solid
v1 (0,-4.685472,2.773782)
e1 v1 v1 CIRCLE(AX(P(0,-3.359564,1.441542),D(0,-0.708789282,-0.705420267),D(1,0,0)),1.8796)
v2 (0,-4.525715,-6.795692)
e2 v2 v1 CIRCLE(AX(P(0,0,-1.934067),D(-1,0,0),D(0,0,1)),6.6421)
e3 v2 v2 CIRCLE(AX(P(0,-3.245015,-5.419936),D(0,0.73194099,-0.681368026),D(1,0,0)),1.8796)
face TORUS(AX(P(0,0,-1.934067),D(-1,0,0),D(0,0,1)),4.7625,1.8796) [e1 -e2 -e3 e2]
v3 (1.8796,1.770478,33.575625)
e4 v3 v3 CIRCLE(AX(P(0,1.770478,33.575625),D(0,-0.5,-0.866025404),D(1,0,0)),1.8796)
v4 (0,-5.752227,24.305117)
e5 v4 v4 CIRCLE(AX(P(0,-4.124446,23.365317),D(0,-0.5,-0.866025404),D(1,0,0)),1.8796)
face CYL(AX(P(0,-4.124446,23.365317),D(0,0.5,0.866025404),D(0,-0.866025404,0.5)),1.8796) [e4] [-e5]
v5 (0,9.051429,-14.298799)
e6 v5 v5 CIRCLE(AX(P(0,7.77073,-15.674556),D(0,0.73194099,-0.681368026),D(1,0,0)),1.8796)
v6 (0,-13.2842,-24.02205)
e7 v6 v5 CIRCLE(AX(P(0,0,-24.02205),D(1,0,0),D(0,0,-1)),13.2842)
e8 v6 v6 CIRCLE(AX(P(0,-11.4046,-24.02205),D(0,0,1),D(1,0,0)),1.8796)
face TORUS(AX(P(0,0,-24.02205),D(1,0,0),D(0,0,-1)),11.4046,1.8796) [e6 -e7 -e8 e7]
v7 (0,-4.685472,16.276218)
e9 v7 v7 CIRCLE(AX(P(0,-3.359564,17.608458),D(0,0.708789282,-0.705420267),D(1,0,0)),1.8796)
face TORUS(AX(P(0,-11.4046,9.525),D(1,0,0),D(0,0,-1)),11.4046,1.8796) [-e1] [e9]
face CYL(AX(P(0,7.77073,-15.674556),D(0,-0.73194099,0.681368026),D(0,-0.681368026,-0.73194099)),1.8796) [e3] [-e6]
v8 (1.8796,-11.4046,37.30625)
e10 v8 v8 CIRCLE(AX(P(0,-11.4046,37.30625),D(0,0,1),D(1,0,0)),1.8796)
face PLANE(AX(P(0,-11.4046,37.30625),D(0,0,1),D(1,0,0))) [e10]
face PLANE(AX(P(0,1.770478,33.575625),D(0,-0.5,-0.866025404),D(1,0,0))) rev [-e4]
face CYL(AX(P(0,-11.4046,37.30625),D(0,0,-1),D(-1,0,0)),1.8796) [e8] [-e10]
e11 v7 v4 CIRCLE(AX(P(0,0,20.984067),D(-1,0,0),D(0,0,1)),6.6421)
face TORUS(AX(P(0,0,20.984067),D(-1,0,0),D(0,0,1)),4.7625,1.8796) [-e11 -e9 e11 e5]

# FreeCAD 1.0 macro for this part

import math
import FreeCAD as App
import Part
import Sketcher

V = App.Vector
Q = App.Units.Quantity

doc = App.newDocument("Part")
body = doc.addObject("PartDesign::Body", "Body")

sketch1 = body.newObject("Sketcher::SketchObject", "Sketch")
sketch1.AttachmentSupport = (doc.getObject("XY_Plane"), [""])
sketch1.MapMode = "FlatFace"
sketch1.AttachmentOffset = App.Placement(V(0, 0, 1.46875 * 25.4), App.Rotation())
sketch1.addGeometry(Part.Circle(V(0, -11.4046, 0), V(0, 0, 1), 1.8796), False)
sketch1.addConstraint([
    Sketcher.Constraint("PointOnObject", 0, 3, -2),
    Sketcher.Constraint("Diameter", 0, Q("0.148 in")),
    Sketcher.Constraint("DistanceY", 0, 3, -1, 1, Q("0.449 in")),
])

sketch2 = body.newObject("Sketcher::SketchObject", "Sketch001")
sketch2.AttachmentSupport = (doc.getObject("YZ_Plane"), [""])
sketch2.MapMode = "FlatFace"
sketch2.addGeometry([
    Part.LineSegment(V(1.770478, 33.575625, 0), V(-4.124446, 23.365317, 0)),
    Part.ArcOfCircle(Part.Circle(V(0, 20.984067, 0), V(0, 0, 1), 4.7625), math.radians(150), math.radians(225.136493)),
    Part.ArcOfCircle(Part.Circle(V(-11.4046, 9.525, 0), V(0, 0, 1), 11.4046), math.radians(-45.136493), math.radians(45.136493)),
    Part.ArcOfCircle(Part.Circle(V(0, -1.934067, 0), V(0, 0, 1), 4.7625), math.radians(134.863507), math.radians(227.049362)),
    Part.LineSegment(V(-3.245015, -5.419936, 0), V(7.77073, -15.674556, 0)),
    Part.ArcOfCircle(Part.Circle(V(0, -24.02205, 0), V(0, 0, 1), 11.4046), math.radians(180), math.radians(407.049362)),
    Part.LineSegment(V(-11.4046, -24.02205, 0), V(-11.4046, 37.30625, 0)),
], False)
sketch2.addConstraint([
    Sketcher.Constraint("Tangent", 0, 2, 1, 1),
    Sketcher.Constraint("Tangent", 1, 2, 2, 2),
    Sketcher.Constraint("Tangent", 2, 1, 3, 1),
    Sketcher.Constraint("Tangent", 3, 2, 4, 1),
    Sketcher.Constraint("Tangent", 4, 2, 5, 2),
    Sketcher.Constraint("Tangent", 5, 1, 6, 1),
    Sketcher.Constraint("Vertical", 6),
    Sketcher.Constraint("Equal", 1, 3),
    Sketcher.Constraint("Equal", 2, 5),
    Sketcher.Constraint("PointOnObject", 1, 3, -2),
    Sketcher.Constraint("PointOnObject", 3, 3, -2),
    Sketcher.Constraint("PointOnObject", 5, 3, -2),
    Sketcher.Constraint("Vertical", 2, 3, 5, 1),
    Sketcher.Constraint("Angle", 0, Q("-120 deg")),
    Sketcher.Constraint("Radius", 1, Q("0.1875 in")),
    Sketcher.Constraint("Radius", 2, Q("0.449 in")),
    Sketcher.Constraint("DistanceY", 6, 1, 6, 2, Q("2.4145 in")),
    Sketcher.Constraint("DistanceY", -1, 1, 2, 3, Q("0.375 in")),
    Sketcher.Constraint("DistanceY", -1, 1, 6, 2, Q("1.46875 in")),
    Sketcher.Constraint("DistanceX", 1, 2, 0, 1, 5.130042),
])
doc.recompute()

additivepipe = body.newObject("PartDesign::AdditivePipe", "AdditivePipe")
additivepipe.Profile = sketch1
additivepipe.Spine = (sketch2, ["Edge1", "Edge2", "Edge3", "Edge4", "Edge5", "Edge6", "Edge7"])

doc.recompute()
